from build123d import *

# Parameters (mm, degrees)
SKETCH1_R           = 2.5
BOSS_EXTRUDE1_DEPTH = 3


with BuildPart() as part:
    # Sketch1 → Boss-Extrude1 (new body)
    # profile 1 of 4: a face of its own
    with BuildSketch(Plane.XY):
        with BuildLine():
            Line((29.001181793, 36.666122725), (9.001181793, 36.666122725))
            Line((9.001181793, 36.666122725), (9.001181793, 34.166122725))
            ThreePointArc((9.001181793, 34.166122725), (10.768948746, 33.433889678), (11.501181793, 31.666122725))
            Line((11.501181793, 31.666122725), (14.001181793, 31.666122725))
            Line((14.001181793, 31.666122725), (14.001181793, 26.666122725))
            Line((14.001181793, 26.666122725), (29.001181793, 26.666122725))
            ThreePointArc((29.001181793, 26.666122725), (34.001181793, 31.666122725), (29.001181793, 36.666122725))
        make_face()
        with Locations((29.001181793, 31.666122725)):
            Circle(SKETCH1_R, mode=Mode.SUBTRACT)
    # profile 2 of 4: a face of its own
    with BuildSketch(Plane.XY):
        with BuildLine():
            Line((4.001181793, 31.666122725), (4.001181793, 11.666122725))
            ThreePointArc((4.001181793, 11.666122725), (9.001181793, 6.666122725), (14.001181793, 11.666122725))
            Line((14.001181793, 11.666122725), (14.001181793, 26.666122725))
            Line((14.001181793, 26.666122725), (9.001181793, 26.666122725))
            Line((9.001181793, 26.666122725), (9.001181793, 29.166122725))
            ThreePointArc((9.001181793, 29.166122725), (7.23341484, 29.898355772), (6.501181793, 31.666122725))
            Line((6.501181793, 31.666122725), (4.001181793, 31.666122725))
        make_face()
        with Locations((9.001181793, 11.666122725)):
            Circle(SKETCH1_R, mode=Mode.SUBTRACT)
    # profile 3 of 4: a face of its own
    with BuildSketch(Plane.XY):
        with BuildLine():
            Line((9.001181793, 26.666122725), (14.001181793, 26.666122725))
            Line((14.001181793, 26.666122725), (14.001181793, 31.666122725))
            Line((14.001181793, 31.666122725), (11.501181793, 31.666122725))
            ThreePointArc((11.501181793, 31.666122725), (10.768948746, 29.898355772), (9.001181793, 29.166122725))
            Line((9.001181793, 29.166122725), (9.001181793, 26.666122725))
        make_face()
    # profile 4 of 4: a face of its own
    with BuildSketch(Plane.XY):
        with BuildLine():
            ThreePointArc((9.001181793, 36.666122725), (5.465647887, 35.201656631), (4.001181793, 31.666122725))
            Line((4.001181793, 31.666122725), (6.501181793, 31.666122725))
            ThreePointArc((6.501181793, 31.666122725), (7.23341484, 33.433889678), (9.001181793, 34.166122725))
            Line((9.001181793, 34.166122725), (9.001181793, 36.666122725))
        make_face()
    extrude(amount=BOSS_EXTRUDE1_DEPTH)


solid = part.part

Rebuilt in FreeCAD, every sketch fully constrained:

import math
import FreeCAD as App
import Part
import Sketcher
Q = App.Units.Quantity

doc = App.newDocument("Part")
body = doc.addObject("PartDesign::Body", "Body")

# Sketch on XY plane
sketch1 = body.newObject("Sketcher::SketchObject", "Sketch")
sketch1.AttachmentSupport = (doc.getObject("XY_Plane"), [""])
sketch1.MapMode = "FlatFace"
sketch1.addGeometry([
    Part.LineSegment(App.Vector(29.001182, 36.666123, 0), App.Vector(9.001182, 36.666123, 0)),  # 0
    Part.ArcOfCircle(Part.Circle(App.Vector(9.001182, 31.666123, 0), App.Vector(0, 0, 1), 5), math.radians(90), math.radians(180)),  # 1
    Part.LineSegment(App.Vector(4.001182, 31.666123, 0), App.Vector(4.001182, 11.666123, 0)),  # 2
    Part.ArcOfCircle(Part.Circle(App.Vector(9.001182, 11.666123, 0), App.Vector(0, 0, 1), 5), math.radians(180), math.radians(360)),  # 3
    Part.LineSegment(App.Vector(14.001182, 11.666123, 0), App.Vector(14.001182, 26.666123, 0)),  # 4
    Part.LineSegment(App.Vector(14.001182, 26.666123, 0), App.Vector(29.001182, 26.666123, 0)),  # 5
    Part.ArcOfCircle(Part.Circle(App.Vector(29.001182, 31.666123, 0), App.Vector(0, 0, 1), 5), math.radians(-90), math.radians(90)),  # 6
    Part.ArcOfCircle(Part.Circle(App.Vector(9.001182, 31.666123, 0), App.Vector(0, 0, 1), 2.5), math.radians(0), math.radians(90)),  # 7
    Part.ArcOfCircle(Part.Circle(App.Vector(9.001182, 31.666123, 0), App.Vector(0, 0, 1), 2.5), math.radians(-90), math.radians(0)),  # 8
    Part.ArcOfCircle(Part.Circle(App.Vector(9.001182, 31.666123, 0), App.Vector(0, 0, 1), 2.5), math.radians(180), math.radians(270)),  # 9
    Part.ArcOfCircle(Part.Circle(App.Vector(9.001182, 31.666123, 0), App.Vector(0, 0, 1), 2.5), math.radians(90), math.radians(180)),  # 10
    Part.Circle(App.Vector(29.001182, 31.666123, 0), App.Vector(0, 0, 1), 2.5),  # 11
    Part.Circle(App.Vector(9.001182, 11.666123, 0), App.Vector(0, 0, 1), 2.5),  # 12
], False)
sketch1.addConstraint([
    Sketcher.Constraint("Tangent", 0, 2, 1, 1),
    Sketcher.Constraint("Tangent", 1, 2, 2, 1),
    Sketcher.Constraint("Tangent", 2, 2, 3, 1),
    Sketcher.Constraint("Tangent", 3, 2, 4, 1),
    Sketcher.Constraint("Coincident", 4, 2, 5, 1),
    Sketcher.Constraint("Tangent", 5, 2, 6, 1),
    Sketcher.Constraint("Tangent", 6, 2, 0, 1),
    Sketcher.Constraint("Tangent", 7, 1, 8, 2),
    Sketcher.Constraint("Tangent", 8, 1, 9, 2),
    Sketcher.Constraint("Tangent", 9, 1, 10, 2),
    Sketcher.Constraint("Tangent", 10, 1, 7, 2),
    Sketcher.Constraint("Horizontal", 0),
    Sketcher.Constraint("Vertical", 2),
    Sketcher.Constraint("Vertical", 4),
    Sketcher.Constraint("Horizontal", 5),
    Sketcher.Constraint("Coincident", 7, 3, 1, 3),
    Sketcher.Constraint("Coincident", 11, 3, 6, 3),
    Sketcher.Constraint("Coincident", 12, 3, 3, 3),
    Sketcher.Constraint("Equal", 1, 3),
    Sketcher.Constraint("Equal", 3, 6),
    Sketcher.Constraint("Equal", 7, 8),
    Sketcher.Constraint("Equal", 10, 11),
    Sketcher.Constraint("Equal", 11, 12),
    Sketcher.Constraint("Horizontal", 1, 2, 7, 1),
    Sketcher.Constraint("Horizontal", 7, 1, 9, 1),
    Sketcher.Constraint("Vertical", 0, 2, 8, 1),
    Sketcher.Constraint("Vertical", 8, 1, 10, 1),
    Sketcher.Constraint("Equal", 0, 2),
    Sketcher.Constraint("Diameter", 11, Q("5 mm")),
    Sketcher.Constraint("Radius", 1, Q("5 mm")),
    Sketcher.Constraint("DistanceX", 0, 2, 0, 1, Q("20 mm")),
    Sketcher.Constraint("DistanceX", -1, 1, 1, 3, Q("9.001182 mm")),
    Sketcher.Constraint("DistanceY", -1, 1, 1, 3, Q("31.666123 mm")),
])
pad1 = body.newObject("PartDesign::Pad", "Pad")
pad1.Profile = sketch1
pad1.Length = 3

doc.recompute()
